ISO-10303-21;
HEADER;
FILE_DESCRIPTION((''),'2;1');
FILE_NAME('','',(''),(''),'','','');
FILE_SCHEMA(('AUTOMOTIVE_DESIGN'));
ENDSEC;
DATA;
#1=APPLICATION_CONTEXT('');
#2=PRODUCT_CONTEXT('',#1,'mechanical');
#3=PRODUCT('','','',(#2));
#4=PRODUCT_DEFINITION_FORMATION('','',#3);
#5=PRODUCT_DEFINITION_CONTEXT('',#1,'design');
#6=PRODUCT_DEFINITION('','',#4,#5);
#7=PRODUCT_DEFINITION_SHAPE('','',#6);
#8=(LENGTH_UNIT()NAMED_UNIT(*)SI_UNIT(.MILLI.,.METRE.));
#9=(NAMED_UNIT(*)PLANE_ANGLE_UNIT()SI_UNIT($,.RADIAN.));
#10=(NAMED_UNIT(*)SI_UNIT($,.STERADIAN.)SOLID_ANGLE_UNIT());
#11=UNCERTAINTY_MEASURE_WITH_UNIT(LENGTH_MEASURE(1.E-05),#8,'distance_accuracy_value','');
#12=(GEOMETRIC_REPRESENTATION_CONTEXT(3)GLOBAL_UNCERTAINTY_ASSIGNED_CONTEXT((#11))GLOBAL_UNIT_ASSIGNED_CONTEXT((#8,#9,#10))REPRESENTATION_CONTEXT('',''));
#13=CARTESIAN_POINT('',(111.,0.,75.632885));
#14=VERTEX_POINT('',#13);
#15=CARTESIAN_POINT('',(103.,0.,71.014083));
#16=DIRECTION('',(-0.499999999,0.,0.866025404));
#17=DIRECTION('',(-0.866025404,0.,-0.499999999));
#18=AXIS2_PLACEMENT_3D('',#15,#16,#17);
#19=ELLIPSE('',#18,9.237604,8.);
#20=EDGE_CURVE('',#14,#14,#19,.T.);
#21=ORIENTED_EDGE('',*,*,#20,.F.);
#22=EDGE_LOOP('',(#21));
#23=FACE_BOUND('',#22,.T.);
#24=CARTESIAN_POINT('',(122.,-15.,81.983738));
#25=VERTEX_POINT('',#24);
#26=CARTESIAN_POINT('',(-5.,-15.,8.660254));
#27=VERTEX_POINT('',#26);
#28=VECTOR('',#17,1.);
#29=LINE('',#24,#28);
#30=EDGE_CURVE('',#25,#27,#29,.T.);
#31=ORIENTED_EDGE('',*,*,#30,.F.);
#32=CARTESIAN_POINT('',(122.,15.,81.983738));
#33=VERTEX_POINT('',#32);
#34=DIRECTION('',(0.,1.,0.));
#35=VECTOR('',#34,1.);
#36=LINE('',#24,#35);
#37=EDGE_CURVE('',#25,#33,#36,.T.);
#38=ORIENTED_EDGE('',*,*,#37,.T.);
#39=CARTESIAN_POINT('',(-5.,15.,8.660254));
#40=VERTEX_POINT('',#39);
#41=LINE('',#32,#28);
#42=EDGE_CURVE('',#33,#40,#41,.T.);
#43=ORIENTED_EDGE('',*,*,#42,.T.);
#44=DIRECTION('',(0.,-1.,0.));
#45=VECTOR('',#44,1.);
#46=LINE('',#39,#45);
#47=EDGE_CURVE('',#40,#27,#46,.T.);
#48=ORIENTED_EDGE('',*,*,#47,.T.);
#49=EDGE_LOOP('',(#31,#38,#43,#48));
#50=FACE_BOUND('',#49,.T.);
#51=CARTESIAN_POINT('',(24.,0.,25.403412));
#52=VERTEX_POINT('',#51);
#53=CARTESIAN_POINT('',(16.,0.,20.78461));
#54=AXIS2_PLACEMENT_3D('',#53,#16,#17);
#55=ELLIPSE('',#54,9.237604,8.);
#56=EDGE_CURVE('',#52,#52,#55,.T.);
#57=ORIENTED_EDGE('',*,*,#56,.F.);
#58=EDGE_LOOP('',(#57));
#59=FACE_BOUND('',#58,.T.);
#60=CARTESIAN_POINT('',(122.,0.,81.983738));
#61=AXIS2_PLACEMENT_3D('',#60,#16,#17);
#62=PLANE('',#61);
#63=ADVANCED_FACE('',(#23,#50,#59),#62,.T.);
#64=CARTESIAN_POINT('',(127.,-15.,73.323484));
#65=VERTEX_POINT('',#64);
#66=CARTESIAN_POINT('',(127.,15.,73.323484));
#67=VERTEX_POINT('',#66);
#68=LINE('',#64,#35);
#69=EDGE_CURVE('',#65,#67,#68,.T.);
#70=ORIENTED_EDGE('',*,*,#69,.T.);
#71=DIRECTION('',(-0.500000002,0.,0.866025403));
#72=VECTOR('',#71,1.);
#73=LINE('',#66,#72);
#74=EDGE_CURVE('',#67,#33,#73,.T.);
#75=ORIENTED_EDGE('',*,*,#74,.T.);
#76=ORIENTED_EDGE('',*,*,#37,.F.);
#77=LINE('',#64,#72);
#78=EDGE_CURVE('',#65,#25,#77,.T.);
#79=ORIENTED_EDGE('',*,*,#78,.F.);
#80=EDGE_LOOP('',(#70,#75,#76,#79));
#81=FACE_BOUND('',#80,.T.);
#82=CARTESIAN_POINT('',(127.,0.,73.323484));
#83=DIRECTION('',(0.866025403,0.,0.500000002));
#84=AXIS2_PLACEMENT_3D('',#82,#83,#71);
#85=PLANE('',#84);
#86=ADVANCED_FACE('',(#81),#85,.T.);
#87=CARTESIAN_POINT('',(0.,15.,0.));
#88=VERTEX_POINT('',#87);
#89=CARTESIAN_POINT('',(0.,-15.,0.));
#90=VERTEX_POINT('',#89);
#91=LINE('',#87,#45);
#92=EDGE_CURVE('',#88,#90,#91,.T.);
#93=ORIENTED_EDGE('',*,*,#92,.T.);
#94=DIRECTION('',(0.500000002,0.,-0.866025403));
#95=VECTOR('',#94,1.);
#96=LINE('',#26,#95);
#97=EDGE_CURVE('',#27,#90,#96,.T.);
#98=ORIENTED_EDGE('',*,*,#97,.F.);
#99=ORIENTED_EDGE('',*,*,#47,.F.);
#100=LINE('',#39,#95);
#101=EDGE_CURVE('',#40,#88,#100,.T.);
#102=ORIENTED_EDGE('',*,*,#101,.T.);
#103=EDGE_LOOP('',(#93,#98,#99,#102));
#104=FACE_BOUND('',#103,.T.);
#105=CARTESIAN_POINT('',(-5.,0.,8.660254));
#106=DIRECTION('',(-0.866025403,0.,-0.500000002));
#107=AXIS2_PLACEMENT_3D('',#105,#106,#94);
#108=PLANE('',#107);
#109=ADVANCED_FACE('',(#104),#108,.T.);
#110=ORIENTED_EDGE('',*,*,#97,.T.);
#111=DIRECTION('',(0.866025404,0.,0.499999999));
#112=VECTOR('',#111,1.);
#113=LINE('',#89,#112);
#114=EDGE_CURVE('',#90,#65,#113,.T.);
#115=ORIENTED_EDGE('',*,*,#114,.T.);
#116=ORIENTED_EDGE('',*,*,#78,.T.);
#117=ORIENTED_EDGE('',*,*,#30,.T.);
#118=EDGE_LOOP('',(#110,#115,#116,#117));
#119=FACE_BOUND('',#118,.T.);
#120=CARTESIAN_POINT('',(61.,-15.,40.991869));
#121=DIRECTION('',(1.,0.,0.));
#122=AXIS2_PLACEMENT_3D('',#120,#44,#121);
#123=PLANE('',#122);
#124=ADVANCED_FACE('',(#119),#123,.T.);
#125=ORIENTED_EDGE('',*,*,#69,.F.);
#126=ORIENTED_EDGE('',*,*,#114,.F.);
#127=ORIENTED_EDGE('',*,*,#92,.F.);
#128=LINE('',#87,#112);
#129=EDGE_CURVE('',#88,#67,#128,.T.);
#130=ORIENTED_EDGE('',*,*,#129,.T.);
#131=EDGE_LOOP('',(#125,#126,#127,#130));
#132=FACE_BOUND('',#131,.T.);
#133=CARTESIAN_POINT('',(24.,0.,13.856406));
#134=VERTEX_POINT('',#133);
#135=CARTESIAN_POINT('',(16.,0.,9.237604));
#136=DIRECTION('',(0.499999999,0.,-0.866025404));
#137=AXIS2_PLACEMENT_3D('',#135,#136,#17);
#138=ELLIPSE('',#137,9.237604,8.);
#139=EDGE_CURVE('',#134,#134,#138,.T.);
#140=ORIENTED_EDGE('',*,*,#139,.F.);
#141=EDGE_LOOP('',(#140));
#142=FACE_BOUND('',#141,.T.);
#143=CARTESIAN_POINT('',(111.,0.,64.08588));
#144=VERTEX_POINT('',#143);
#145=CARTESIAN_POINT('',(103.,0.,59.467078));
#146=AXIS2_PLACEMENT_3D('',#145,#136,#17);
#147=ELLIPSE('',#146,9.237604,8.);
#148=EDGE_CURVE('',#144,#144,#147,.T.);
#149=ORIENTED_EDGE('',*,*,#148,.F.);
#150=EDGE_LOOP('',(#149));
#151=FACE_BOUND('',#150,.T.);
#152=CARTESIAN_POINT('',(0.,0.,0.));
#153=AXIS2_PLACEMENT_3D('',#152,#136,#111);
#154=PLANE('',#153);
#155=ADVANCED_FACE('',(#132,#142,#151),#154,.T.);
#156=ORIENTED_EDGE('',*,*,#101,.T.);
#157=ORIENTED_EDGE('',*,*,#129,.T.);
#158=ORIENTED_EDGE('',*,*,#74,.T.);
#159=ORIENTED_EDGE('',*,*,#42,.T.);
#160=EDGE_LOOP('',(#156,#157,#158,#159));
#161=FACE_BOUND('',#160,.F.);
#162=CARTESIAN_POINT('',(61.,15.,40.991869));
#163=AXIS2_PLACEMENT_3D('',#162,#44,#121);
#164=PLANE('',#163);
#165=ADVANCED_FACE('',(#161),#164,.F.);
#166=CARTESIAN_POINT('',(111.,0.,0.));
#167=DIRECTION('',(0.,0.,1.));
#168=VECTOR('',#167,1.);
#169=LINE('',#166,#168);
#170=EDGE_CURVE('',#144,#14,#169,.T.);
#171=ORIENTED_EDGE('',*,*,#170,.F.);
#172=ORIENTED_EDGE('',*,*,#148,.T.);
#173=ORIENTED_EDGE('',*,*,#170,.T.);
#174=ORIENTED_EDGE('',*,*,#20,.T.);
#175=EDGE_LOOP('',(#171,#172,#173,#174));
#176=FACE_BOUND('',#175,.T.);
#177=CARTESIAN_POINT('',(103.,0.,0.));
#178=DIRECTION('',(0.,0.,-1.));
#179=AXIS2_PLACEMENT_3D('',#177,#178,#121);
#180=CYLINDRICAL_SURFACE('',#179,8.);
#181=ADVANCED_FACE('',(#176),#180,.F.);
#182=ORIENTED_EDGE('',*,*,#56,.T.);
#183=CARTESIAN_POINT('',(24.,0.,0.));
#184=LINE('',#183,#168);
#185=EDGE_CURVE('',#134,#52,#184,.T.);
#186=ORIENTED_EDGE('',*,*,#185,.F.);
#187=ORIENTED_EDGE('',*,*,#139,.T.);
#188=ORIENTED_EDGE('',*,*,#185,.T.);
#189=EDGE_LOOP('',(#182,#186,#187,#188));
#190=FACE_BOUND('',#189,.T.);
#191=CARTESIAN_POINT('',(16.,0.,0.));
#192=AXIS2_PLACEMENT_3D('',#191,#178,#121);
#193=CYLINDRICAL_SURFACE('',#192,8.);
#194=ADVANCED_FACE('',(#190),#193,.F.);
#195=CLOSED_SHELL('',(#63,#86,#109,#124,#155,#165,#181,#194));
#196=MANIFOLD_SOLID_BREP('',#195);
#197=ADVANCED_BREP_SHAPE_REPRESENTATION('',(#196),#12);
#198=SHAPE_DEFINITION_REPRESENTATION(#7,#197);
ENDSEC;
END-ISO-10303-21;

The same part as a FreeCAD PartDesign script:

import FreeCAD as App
import Part
import Sketcher
from FreeCAD import Vector
Q = App.Units.Quantity

doc = App.newDocument("Part")
params = doc.addObject("Spreadsheet::Sheet", "Params")
for row, (alias, value) in enumerate([
    ("sketch1_length", "10 mm"),
    ("pad1_length", "30 mm"),
    ("sketch2_diameter", "16 mm"),
], start=1):
    params.set(f"A{row}", alias)
    params.set(f"B{row}", "=" + value)
    params.setAlias(f"B{row}", alias)

body = doc.addObject("PartDesign::Body", "Body")

# Sketch on XZ plane
sketch1 = body.newObject("Sketcher::SketchObject", "Sketch")
sketch1.AttachmentSupport = (doc.getObject("XZ_Plane"), [""])
sketch1.MapMode = "FlatFace"
sketch1.addGeometry([
    Part.LineSegment(Vector(122, 82, 0), Vector(-5, 9, 0)),
    Part.LineSegment(Vector(-5, 9, 0), Vector(0, 0, 0)),
    Part.LineSegment(Vector(0, 0, 0), Vector(127, 73, 0)),
    Part.LineSegment(Vector(127, 73, 0), Vector(122, 82, 0)),
], False)
sketch1.addConstraint([
    Sketcher.Constraint("Coincident", 0, 2, 1, 1),
    Sketcher.Constraint("Coincident", 1, 2, 2, 1),
    Sketcher.Constraint("Coincident", 2, 2, 3, 1),
    Sketcher.Constraint("Coincident", 3, 2, 0, 1),
    Sketcher.Constraint("Coincident", 1, 2, -1, 1),
    Sketcher.Constraint("Perpendicular", 0, 1),
    Sketcher.Constraint("Perpendicular", 1, 2),
    Sketcher.Constraint("Perpendicular", 2, 3),
    Sketcher.Constraint("Angle", 0, Q("-150 deg")),
    Sketcher.Constraint("Distance", 1, Q("10 mm")),
    Sketcher.Constraint("DistanceX", -1, 1, 2, 2, Q("127 mm")),
])
sketch1.setExpression("Constraints[9]", "Params.sketch1_length")
pad1 = body.newObject("PartDesign::Pad", "Pad")
pad1.Profile = sketch1
pad1.setExpression("Length", "Params.pad1_length")
pad1.Midplane = True

# Sketch on XY plane
sketch2 = body.newObject("Sketcher::SketchObject", "Sketch001")
sketch2.AttachmentSupport = (doc.getObject("XY_Plane"), [""])
sketch2.MapMode = "FlatFace"
sketch2.addGeometry([
    Part.Circle(Vector(16, 0, 0), Vector(0, 0, 1), 8),
    Part.Circle(Vector(103, 0, 0), Vector(0, 0, 1), 8),
], False)
sketch2.addConstraint([
    Sketcher.Constraint("Equal", 0, 1),
    Sketcher.Constraint("PointOnObject", 0, 3, -1),
    Sketcher.Constraint("PointOnObject", 1, 3, -1),
    Sketcher.Constraint("Diameter", 0, Q("16 mm")),
    Sketcher.Constraint("DistanceX", -1, 1, 0, 3, Q("16 mm")),
    Sketcher.Constraint("DistanceX", -1, 1, 1, 3, Q("103 mm")),
])
sketch2.setExpression("Constraints[3]", "Params.sketch2_diameter")
pocket1 = body.newObject("PartDesign::Pocket", "Pocket")
pocket1.Profile = sketch2
pocket1.Type = "ThroughAll"
pocket1.Reversed = True

doc.recompute()
